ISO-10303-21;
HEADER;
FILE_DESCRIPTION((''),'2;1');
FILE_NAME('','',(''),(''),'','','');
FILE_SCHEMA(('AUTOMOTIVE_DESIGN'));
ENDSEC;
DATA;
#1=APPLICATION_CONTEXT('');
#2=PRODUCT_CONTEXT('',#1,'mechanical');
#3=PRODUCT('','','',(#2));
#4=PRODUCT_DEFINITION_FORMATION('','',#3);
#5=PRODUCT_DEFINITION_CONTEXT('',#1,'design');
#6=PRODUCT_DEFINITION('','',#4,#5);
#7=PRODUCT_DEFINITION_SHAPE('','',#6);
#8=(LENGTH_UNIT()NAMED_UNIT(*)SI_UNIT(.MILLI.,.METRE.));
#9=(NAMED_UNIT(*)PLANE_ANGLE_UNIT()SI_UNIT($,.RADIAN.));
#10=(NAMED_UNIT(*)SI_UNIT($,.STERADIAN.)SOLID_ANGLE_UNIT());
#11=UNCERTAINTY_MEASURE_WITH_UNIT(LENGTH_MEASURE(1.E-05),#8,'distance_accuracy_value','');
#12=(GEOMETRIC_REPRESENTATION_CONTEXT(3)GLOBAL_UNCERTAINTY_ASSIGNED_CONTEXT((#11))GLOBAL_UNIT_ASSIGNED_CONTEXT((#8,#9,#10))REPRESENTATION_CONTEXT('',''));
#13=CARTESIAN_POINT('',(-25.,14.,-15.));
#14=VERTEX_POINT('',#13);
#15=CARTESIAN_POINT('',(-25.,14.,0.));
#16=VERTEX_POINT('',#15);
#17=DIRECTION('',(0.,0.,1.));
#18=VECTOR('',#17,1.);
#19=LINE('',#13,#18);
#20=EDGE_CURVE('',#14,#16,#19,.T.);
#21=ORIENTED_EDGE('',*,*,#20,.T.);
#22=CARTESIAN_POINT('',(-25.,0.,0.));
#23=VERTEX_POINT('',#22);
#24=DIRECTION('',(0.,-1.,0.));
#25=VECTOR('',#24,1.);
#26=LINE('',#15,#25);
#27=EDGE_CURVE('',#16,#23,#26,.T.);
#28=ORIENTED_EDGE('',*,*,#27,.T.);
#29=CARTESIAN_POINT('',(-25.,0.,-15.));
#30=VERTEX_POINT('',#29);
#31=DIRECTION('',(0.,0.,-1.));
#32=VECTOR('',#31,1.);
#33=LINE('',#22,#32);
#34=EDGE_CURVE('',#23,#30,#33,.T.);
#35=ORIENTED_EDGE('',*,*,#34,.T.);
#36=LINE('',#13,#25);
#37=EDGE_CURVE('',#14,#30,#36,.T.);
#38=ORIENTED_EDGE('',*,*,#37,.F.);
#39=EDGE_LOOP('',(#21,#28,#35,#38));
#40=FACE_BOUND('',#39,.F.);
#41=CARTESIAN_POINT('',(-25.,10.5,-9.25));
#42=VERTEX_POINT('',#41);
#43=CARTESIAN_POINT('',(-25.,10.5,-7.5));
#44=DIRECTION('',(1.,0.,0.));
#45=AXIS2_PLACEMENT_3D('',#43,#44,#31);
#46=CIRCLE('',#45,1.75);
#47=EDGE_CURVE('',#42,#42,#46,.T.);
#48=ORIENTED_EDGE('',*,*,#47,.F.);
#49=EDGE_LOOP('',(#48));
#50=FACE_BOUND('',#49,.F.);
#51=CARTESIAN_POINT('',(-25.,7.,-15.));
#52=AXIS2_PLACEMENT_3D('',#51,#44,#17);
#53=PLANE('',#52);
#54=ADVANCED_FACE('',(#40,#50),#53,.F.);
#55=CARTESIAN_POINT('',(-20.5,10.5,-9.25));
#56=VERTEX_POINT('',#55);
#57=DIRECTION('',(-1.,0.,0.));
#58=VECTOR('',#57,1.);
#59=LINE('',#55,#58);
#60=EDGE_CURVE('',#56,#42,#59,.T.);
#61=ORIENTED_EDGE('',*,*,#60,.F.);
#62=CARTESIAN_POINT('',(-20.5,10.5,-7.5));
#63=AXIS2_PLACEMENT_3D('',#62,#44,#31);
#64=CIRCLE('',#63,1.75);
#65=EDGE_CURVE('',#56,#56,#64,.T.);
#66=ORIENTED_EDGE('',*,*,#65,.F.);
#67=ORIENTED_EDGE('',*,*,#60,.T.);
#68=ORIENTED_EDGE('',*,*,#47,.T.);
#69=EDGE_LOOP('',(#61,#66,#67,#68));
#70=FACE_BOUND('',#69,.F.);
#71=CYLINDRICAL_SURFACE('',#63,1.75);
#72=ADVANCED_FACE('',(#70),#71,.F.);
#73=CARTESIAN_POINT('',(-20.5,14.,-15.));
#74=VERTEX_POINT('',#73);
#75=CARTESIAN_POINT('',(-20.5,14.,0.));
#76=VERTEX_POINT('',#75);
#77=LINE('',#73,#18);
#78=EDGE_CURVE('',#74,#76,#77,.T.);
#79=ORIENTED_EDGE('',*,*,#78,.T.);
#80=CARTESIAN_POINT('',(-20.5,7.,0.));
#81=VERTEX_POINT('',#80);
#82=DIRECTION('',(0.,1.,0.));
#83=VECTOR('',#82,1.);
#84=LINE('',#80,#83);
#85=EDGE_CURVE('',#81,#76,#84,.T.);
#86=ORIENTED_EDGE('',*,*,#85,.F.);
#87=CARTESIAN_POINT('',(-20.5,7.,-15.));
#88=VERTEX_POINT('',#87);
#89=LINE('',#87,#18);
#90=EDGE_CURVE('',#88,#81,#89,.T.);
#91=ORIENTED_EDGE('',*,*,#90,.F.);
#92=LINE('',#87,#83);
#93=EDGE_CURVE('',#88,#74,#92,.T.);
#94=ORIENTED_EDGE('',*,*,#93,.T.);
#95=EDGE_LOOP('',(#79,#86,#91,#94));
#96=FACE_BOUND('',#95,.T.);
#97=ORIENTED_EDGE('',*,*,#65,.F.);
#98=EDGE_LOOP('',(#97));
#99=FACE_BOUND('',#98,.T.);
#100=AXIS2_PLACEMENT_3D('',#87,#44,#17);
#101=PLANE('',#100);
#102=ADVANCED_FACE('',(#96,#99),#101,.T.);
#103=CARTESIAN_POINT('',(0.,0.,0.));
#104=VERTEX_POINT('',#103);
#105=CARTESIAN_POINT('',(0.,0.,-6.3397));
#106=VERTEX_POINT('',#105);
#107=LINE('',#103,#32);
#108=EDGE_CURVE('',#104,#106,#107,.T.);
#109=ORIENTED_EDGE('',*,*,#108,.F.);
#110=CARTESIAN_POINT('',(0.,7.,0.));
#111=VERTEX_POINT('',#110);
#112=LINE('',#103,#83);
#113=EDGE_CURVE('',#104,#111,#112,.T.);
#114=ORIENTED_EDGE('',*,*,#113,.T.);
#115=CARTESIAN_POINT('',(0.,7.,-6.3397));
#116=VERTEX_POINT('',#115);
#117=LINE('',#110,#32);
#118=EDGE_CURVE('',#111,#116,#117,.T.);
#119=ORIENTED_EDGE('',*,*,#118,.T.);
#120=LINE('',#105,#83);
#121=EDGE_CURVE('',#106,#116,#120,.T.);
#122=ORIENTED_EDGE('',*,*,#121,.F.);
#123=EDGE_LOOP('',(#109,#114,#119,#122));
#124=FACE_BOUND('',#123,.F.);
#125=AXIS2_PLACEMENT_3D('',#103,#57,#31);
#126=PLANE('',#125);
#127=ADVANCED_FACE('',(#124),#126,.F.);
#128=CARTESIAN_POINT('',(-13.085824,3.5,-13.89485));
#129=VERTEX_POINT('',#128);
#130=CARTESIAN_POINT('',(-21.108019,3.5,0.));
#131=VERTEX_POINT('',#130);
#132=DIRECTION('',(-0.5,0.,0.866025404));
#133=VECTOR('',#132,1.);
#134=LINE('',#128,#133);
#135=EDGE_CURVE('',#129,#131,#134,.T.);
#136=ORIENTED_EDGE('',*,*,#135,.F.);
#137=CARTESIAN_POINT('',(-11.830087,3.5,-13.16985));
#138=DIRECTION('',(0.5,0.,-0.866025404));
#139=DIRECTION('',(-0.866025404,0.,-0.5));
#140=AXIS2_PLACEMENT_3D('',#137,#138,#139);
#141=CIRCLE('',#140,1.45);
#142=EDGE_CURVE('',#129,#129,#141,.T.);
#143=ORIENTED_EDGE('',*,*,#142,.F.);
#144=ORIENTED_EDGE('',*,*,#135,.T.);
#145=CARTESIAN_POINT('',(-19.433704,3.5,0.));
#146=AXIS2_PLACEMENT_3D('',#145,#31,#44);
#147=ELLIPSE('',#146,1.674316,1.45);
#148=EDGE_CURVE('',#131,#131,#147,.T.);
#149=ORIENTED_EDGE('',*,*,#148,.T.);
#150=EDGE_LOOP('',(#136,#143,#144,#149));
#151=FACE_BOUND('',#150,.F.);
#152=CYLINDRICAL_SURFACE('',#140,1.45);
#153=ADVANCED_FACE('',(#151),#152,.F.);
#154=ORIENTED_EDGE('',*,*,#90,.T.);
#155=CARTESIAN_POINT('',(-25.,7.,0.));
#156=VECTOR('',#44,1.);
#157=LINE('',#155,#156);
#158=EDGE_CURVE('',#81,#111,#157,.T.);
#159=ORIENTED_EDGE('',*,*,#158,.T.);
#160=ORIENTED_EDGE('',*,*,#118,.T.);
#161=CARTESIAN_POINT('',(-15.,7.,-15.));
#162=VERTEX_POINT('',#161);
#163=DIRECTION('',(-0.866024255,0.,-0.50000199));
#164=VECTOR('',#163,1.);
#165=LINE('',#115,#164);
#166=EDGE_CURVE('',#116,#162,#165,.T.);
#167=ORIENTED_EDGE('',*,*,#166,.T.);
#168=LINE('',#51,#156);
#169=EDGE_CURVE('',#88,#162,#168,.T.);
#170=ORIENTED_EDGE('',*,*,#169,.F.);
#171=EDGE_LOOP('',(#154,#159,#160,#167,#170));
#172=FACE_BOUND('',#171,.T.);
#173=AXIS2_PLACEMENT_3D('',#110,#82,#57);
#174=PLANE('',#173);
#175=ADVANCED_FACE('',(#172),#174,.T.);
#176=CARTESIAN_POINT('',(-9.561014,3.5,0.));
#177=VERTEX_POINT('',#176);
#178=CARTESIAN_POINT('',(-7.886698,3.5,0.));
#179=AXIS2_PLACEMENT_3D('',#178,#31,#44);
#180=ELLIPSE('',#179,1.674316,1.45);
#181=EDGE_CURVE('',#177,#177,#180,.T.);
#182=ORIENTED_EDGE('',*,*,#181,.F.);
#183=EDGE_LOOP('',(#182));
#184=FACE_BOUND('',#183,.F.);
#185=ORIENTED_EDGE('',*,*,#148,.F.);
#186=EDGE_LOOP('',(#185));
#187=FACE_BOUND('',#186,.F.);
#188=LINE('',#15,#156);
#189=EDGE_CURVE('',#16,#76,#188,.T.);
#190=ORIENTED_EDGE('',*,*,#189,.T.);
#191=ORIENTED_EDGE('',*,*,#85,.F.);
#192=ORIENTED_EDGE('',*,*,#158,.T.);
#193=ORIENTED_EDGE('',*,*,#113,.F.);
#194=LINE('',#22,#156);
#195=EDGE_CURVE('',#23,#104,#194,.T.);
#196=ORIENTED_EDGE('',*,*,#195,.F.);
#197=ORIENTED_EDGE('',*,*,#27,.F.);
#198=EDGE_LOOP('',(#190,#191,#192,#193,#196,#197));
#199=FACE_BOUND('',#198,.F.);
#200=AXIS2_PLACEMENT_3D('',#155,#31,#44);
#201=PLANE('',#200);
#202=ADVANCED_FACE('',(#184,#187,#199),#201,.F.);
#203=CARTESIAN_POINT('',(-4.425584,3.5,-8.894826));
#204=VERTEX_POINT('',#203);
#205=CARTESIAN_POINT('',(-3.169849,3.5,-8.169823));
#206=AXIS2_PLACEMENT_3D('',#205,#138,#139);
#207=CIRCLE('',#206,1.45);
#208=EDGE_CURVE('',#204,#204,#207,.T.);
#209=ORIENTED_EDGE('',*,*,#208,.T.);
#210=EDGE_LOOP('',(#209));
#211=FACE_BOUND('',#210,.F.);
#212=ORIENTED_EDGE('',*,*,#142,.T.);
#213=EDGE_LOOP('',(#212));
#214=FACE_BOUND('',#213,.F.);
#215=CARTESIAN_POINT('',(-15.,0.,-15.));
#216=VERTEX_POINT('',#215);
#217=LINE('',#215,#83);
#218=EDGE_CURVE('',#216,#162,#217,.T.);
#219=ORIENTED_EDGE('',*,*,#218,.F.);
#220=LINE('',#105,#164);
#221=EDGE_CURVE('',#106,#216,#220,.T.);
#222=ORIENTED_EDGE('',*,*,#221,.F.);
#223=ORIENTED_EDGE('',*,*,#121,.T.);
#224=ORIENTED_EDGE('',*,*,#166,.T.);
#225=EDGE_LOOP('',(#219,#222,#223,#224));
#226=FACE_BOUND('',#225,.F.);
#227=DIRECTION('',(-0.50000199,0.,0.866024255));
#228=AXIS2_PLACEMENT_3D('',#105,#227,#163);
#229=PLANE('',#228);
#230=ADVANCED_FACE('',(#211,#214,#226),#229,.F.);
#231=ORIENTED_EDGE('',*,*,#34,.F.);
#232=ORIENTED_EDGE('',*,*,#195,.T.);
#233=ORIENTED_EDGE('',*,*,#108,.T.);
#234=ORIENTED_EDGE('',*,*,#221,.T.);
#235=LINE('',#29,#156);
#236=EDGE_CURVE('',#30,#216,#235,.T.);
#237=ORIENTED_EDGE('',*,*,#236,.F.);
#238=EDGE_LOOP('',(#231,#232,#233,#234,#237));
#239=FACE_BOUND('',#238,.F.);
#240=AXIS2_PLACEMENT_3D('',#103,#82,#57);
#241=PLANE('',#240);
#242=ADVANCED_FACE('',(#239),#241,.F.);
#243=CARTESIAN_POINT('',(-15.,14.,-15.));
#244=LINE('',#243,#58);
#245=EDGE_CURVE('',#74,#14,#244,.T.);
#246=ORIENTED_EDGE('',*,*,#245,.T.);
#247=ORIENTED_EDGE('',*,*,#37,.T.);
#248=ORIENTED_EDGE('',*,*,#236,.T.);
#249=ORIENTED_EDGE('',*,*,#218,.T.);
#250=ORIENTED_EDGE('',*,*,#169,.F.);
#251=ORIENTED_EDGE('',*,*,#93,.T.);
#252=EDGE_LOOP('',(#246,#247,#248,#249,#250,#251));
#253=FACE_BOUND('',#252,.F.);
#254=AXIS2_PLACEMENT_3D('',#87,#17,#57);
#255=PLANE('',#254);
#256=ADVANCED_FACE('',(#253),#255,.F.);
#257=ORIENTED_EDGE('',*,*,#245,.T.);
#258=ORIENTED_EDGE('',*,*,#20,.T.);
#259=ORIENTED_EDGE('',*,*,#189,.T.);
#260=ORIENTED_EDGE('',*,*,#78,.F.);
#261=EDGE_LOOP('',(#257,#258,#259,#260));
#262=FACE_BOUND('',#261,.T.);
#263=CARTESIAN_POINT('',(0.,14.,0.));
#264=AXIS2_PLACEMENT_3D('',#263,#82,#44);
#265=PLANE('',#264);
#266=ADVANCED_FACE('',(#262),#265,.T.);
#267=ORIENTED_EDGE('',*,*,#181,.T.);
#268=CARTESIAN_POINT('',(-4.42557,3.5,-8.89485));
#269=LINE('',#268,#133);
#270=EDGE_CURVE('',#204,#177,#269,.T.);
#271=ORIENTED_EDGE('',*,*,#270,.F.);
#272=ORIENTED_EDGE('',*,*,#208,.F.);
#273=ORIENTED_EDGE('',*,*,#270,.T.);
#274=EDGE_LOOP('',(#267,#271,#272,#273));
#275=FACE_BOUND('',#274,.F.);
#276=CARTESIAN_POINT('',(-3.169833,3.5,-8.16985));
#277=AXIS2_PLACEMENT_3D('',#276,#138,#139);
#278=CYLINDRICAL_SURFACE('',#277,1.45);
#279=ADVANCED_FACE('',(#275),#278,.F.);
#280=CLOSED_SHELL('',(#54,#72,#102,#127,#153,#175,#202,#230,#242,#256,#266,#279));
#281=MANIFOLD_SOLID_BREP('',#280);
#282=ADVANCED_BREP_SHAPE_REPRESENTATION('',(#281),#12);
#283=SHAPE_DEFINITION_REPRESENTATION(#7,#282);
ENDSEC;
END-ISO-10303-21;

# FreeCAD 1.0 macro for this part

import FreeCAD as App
import Part
import Sketcher

V = App.Vector
Q = App.Units.Quantity


def add_polygon(sketch, points):
    """Adds a closed chain of lines whose ends are joined by coincident constraints."""
    first, n = sketch.GeometryCount, len(points)
    for a, b in zip(points, points[1:] + points[:1]):
        sketch.addGeometry(Part.LineSegment(App.Vector(*a, 0), App.Vector(*b, 0)), False)
    for i in range(n):
        sketch.addConstraint(Sketcher.Constraint("Coincident", first + i, 2, first + (i + 1) % n, 1))

doc = App.newDocument("Part")
body = doc.addObject("PartDesign::Body", "Body")

# Sketch on XZ plane
sketch1 = body.newObject("Sketcher::SketchObject", "Sketch")
sketch1.AttachmentSupport = (doc.getObject("XZ_Plane"), [""])
sketch1.MapMode = "FlatFace"
add_polygon(sketch1, [(-25, 0), (0, 0), (0, -6), (-15, -15), (-25, -15)])  # lines 0-4
sketch1.addConstraint(Sketcher.Constraint("Horizontal", 0))
sketch1.addConstraint(Sketcher.Constraint("Vertical", 1))
sketch1.addConstraint(Sketcher.Constraint("Horizontal", 3))
sketch1.addConstraint(Sketcher.Constraint("Vertical", 4))
sketch1.addConstraint(Sketcher.Constraint("Coincident", 0, 2, -1, 1))
sketch1.addConstraint(Sketcher.Constraint("DistanceX", 3, 2, 3, 1, Q("10 mm")))
sketch1.addConstraint(Sketcher.Constraint("DistanceY", 4, 1, 4, 2, Q("15 mm")))
sketch1.addConstraint(Sketcher.Constraint("DistanceX", 2, 2, -1, 1, Q("15 mm")))
sketch1.addConstraint(Sketcher.Constraint("Angle", 2, Q("-149.9999 deg")))
pad1 = body.newObject("PartDesign::Pad", "Pad")
pad1.Profile = sketch1
pad1.Length = 7
pad1.Reversed = True

# Sketch on an angled plane
sketch2 = body.newObject("Sketcher::SketchObject", "Sketch001")
sketch2.Placement = App.Placement(V(-15, 0, -15), App.Rotation(V(-0.866025404, 0, -0.5), V(0, 1, 0), V(0.5, 0, -0.866025404), "ZXY"))
sketch2.addGeometry(Part.Circle(V(-3.7, 3.5, 0), V(0, 0, 1), 1.4), False)
sketch2.addGeometry(Part.Circle(V(-13.7, 3.5, 0), V(0, 0, 1), 1.4), False)
sketch2.addConstraint(Sketcher.Constraint("Equal", 0, 1))
sketch2.addConstraint(Sketcher.Constraint("Horizontal", 0, 3, 1, 3))
sketch2.addConstraint(Sketcher.Constraint("Diameter", 0, Q("2.9 mm")))
sketch2.addConstraint(Sketcher.Constraint("DistanceX", 1, 3, 0, 3, Q("10 mm")))
sketch2.addConstraint(Sketcher.Constraint("DistanceY", -1, 1, 0, 3, Q("3.5 mm")))
sketch2.addConstraint(Sketcher.Constraint("DistanceX", 0, 3, -1, 1, Q("3.6603 mm")))
pocket1 = body.newObject("PartDesign::Pocket", "Pocket")
pocket1.Profile = sketch2
pocket1.Type = "ThroughAll"

# Sketch on XZ plane
sketch3 = body.newObject("Sketcher::SketchObject", "Sketch002")
sketch3.AttachmentSupport = (doc.getObject("XZ_Plane"), [""])
sketch3.MapMode = "FlatFace"
sketch3.AttachmentOffset = App.Placement(V(0, 0, -7), App.Rotation())
add_polygon(sketch3, [(-25, 0), (-20.5, 0), (-20.5, -15), (-25, -15)])  # lines 0-3
sketch3.addConstraint(Sketcher.Constraint("Horizontal", 0))
sketch3.addConstraint(Sketcher.Constraint("Vertical", 1))
sketch3.addConstraint(Sketcher.Constraint("Horizontal", 2))
sketch3.addConstraint(Sketcher.Constraint("Vertical", 3))
sketch3.addConstraint(Sketcher.Constraint("PointOnObject", 0, 2, -1))
sketch3.addConstraint(Sketcher.Constraint("DistanceX", 0, 1, 0, 2, Q("4.5 mm")))
sketch3.addConstraint(Sketcher.Constraint("DistanceY", 1, 2, 1, 1, Q("15 mm")))
sketch3.addConstraint(Sketcher.Constraint("DistanceX", 2, 2, -1, 1, Q("25 mm")))
pad2 = body.newObject("PartDesign::Pad", "Pad001")
pad2.Profile = sketch3
pad2.Length = 7
pad2.Reversed = True

# Sketch on YZ plane
sketch4 = body.newObject("Sketcher::SketchObject", "Sketch003")
sketch4.AttachmentSupport = (doc.getObject("YZ_Plane"), [""])
sketch4.MapMode = "FlatFace"
sketch4.AttachmentOffset = App.Placement(V(0, 0, -20.5), App.Rotation())
sketch4.addGeometry(Part.Circle(V(10.5, -7.5, 0), V(0, 0, 1), 1.8), False)
sketch4.addConstraint(Sketcher.Constraint("Diameter", 0, Q("3.5 mm")))
sketch4.addConstraint(Sketcher.Constraint("DistanceX", -1, 1, 0, 3, Q("10.5 mm")))
sketch4.addConstraint(Sketcher.Constraint("DistanceY", 0, 3, -1, 1, Q("7.5 mm")))
pocket2 = body.newObject("PartDesign::Pocket", "Pocket001")
pocket2.Profile = sketch4
pocket2.Type = "ThroughAll"

doc.recompute()
